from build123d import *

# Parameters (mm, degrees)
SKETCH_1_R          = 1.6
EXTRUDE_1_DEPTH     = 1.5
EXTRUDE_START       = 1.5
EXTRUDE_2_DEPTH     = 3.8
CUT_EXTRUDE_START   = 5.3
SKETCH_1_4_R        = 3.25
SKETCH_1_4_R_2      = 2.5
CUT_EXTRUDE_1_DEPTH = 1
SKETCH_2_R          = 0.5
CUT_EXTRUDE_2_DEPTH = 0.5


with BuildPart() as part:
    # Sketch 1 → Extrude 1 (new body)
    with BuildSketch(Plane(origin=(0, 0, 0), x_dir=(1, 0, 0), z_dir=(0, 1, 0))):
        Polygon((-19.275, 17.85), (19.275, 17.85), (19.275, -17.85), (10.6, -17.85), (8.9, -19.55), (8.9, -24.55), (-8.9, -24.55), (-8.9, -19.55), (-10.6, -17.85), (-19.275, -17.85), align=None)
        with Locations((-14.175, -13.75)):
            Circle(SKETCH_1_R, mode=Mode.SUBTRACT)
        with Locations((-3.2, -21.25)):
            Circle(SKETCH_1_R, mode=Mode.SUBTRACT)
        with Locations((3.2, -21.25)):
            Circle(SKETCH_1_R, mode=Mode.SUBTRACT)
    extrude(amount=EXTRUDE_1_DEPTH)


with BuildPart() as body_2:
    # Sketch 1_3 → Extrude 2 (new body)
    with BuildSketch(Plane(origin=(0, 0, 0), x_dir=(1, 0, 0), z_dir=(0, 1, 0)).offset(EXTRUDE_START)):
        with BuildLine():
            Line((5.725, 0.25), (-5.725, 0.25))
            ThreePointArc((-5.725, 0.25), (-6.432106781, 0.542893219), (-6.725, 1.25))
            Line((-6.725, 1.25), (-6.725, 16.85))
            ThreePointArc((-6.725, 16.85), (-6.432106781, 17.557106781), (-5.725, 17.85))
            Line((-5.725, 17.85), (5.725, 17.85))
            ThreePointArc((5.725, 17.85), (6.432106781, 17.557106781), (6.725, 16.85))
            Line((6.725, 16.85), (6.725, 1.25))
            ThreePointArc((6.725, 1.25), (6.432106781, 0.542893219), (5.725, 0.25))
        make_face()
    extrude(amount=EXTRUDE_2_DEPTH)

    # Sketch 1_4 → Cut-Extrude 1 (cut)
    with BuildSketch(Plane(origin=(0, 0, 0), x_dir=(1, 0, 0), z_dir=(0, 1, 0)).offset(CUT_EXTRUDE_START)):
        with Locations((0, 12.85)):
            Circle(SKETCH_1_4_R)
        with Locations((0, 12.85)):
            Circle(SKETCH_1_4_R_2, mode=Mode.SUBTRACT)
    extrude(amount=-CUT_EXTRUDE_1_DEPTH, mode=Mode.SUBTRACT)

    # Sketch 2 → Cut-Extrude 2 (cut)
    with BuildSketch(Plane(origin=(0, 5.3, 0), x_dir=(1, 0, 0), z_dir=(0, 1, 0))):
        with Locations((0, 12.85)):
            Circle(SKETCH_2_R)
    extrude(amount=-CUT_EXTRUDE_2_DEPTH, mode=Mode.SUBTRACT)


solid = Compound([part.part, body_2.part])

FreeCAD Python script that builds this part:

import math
import FreeCAD as App
import Part
import Sketcher
from FreeCAD import Vector

doc = App.newDocument("Part")
body = doc.addObject("PartDesign::Body", "Body")

# Sketch on XZ plane
sketch1 = body.newObject("Sketcher::SketchObject", "Sketch")
sketch1.AttachmentSupport = (doc.getObject("XZ_Plane"), [""])
sketch1.MapMode = "FlatFace"
sketch1.addGeometry([
    Part.LineSegment(Vector(19.275, -17.85, 0), Vector(-19.275, -17.85, 0)),  # 0
    Part.LineSegment(Vector(-19.275, -17.85, 0), Vector(-19.275, 17.85, 0)),  # 1
    Part.LineSegment(Vector(-19.275, 17.85, 0), Vector(-10.6, 17.85, 0)),  # 2
    Part.LineSegment(Vector(-10.6, 17.85, 0), Vector(-8.9, 19.55, 0)),  # 3
    Part.LineSegment(Vector(-8.9, 19.55, 0), Vector(-8.9, 24.55, 0)),  # 4
    Part.LineSegment(Vector(-8.9, 24.55, 0), Vector(8.9, 24.55, 0)),  # 5
    Part.LineSegment(Vector(8.9, 24.55, 0), Vector(8.9, 19.55, 0)),  # 6
    Part.LineSegment(Vector(8.9, 19.55, 0), Vector(10.6, 17.85, 0)),  # 7
    Part.LineSegment(Vector(10.6, 17.85, 0), Vector(19.275, 17.85, 0)),  # 8
    Part.LineSegment(Vector(19.275, 17.85, 0), Vector(19.275, -17.85, 0)),  # 9
    Part.Circle(Vector(3.2, 21.25, 0), Vector(0, 0, 1), 1.6),  # 10
    Part.Circle(Vector(-3.2, 21.25, 0), Vector(0, 0, 1), 1.6),  # 11
    Part.Circle(Vector(-14.175, 13.75, 0), Vector(0, 0, 1), 1.6),  # 12
], False)
sketch1.addConstraint([
    Sketcher.Constraint("Coincident", 0, 2, 1, 1),
    Sketcher.Constraint("Coincident", 1, 2, 2, 1),
    Sketcher.Constraint("Coincident", 2, 2, 3, 1),
    Sketcher.Constraint("Coincident", 3, 2, 4, 1),
    Sketcher.Constraint("Coincident", 4, 2, 5, 1),
    Sketcher.Constraint("Coincident", 5, 2, 6, 1),
    Sketcher.Constraint("Coincident", 6, 2, 7, 1),
    Sketcher.Constraint("Coincident", 7, 2, 8, 1),
    Sketcher.Constraint("Coincident", 8, 2, 9, 1),
    Sketcher.Constraint("Coincident", 9, 2, 0, 1),
    Sketcher.Constraint("Horizontal", 0),
    Sketcher.Constraint("Vertical", 1),
    Sketcher.Constraint("Horizontal", 2),
    Sketcher.Constraint("Vertical", 4),
    Sketcher.Constraint("Horizontal", 5),
    Sketcher.Constraint("Vertical", 6),
    Sketcher.Constraint("Horizontal", 8),
    Sketcher.Constraint("Vertical", 9),
    Sketcher.Constraint("Equal", 10, 11),
    Sketcher.Constraint("Equal", 11, 12),
    Sketcher.Constraint("Symmetric", 0, 2, 8, 2, -1, 1),
    Sketcher.Constraint("Symmetric", 10, 3, 11, 3, -2),
    Sketcher.Constraint("Symmetric", 3, 2, 6, 2, -2),
    Sketcher.Constraint("Symmetric", 2, 2, 7, 2, -2),
    Sketcher.Constraint("Perpendicular", 3, 7),
    Sketcher.Constraint("Diameter", 10, 3.2),
    Sketcher.Constraint("DistanceY", 4, 1, 4, 2, 5.0),
    Sketcher.Constraint("DistanceX", 5, 1, 5, 2, 17.8),
    Sketcher.Constraint("DistanceY", 1, 1, 1, 2, 35.7),
    Sketcher.Constraint("DistanceX", 0, 2, 0, 1, 38.55),
    Sketcher.Constraint("DistanceX", -1, 1, 10, 3, 3.2),
    Sketcher.Constraint("DistanceX", 2, 2, -1, 1, 10.6),
    Sketcher.Constraint("DistanceY", 12, 3, 11, 3, 7.5),
    Sketcher.Constraint("DistanceX", 0, 2, 12, 3, 5.1),
    Sketcher.Constraint("DistanceY", 0, 2, 12, 3, 31.6),
])
pad1 = body.newObject("PartDesign::Pad", "Pad")
pad1.Profile = sketch1
pad1.Length = 1.5
pad1.Reversed = True
body2 = doc.addObject("PartDesign::Body", "Body001")

# Sketch on XZ plane
sketch2 = body2.newObject("Sketcher::SketchObject", "Sketch001")
sketch2.AttachmentSupport = (doc.getObject("XZ_Plane001"), [""])
sketch2.MapMode = "FlatFace"
sketch2.AttachmentOffset = App.Placement(Vector(0, 0, -1.5), App.Rotation())
sketch2.addGeometry([
    Part.LineSegment(Vector(-5.725, -0.25, 0), Vector(5.725, -0.25, 0)),  # 0
    Part.ArcOfCircle(Part.Circle(Vector(5.725, -1.25, 0), Vector(0, 0, 1), 1), math.radians(0), math.radians(90)),  # 1
    Part.LineSegment(Vector(6.725, -1.25, 0), Vector(6.725, -16.85, 0)),  # 2
    Part.ArcOfCircle(Part.Circle(Vector(5.725, -16.85, 0), Vector(0, 0, 1), 1), math.radians(-90), math.radians(0)),  # 3
    Part.LineSegment(Vector(5.725, -17.85, 0), Vector(-5.725, -17.85, 0)),  # 4
    Part.ArcOfCircle(Part.Circle(Vector(-5.725, -16.85, 0), Vector(0, 0, 1), 1), math.radians(-180), math.radians(-90)),  # 5
    Part.LineSegment(Vector(-6.725, -16.85, 0), Vector(-6.725, -1.25, 0)),  # 6
    Part.ArcOfCircle(Part.Circle(Vector(-5.725, -1.25, 0), Vector(0, 0, 1), 1), math.radians(90), math.radians(180)),  # 7
], False)
sketch2.addConstraint([
    Sketcher.Constraint("Tangent", 0, 2, 1, 2),
    Sketcher.Constraint("Tangent", 1, 1, 2, 1),
    Sketcher.Constraint("Tangent", 2, 2, 3, 2),
    Sketcher.Constraint("Tangent", 3, 1, 4, 1),
    Sketcher.Constraint("Tangent", 4, 2, 5, 2),
    Sketcher.Constraint("Tangent", 5, 1, 6, 1),
    Sketcher.Constraint("Tangent", 6, 2, 7, 2),
    Sketcher.Constraint("Tangent", 7, 1, 0, 1),
    Sketcher.Constraint("Horizontal", 0),
    Sketcher.Constraint("Vertical", 2),
    Sketcher.Constraint("Horizontal", 4),
    Sketcher.Constraint("Vertical", 6),
    Sketcher.Constraint("Equal", 1, 3),
    Sketcher.Constraint("Equal", 3, 5),
    Sketcher.Constraint("Equal", 5, 7),
    Sketcher.Constraint("Radius", 1, 1.0),
    Sketcher.Constraint("DistanceY", 2, 2, 2, 1, 15.6),
    Sketcher.Constraint("DistanceX", 0, 1, 0, 2, 11.45),
    Sketcher.Constraint("DistanceY", 1, 3, -1, 1, 1.25),
    Sketcher.Constraint("DistanceX", -1, 1, 1, 3, 5.725),
])
pad2 = body2.newObject("PartDesign::Pad", "Pad001")
pad2.Profile = sketch2
pad2.Length = 3.8
pad2.Reversed = True

# Sketch on XZ plane
sketch3 = body2.newObject("Sketcher::SketchObject", "Sketch002")
sketch3.AttachmentSupport = (doc.getObject("XZ_Plane001"), [""])
sketch3.MapMode = "FlatFace"
sketch3.AttachmentOffset = App.Placement(Vector(0, 0, -5.3), App.Rotation())
sketch3.addGeometry([
    Part.Circle(Vector(0, -12.85, 0), Vector(0, 0, 1), 3.25),
    Part.Circle(Vector(0, -12.85, 0), Vector(0, 0, 1), 2.5),
], False)
sketch3.addConstraint([
    Sketcher.Constraint("Coincident", 1, 3, 0, 3),
    Sketcher.Constraint("PointOnObject", 0, 3, -2),
    Sketcher.Constraint("Diameter", 1, 5.0),
    Sketcher.Constraint("Diameter", 0, 6.5),
    Sketcher.Constraint("DistanceY", 0, 3, -1, 1, 12.85),
])
pocket1 = body2.newObject("PartDesign::Pocket", "Pocket")
pocket1.Profile = sketch3
pocket1.Length = 1
pocket1.Reversed = True

# Sketch on XZ plane
sketch4 = body2.newObject("Sketcher::SketchObject", "Sketch003")
sketch4.AttachmentSupport = (doc.getObject("XZ_Plane001"), [""])
sketch4.MapMode = "FlatFace"
sketch4.AttachmentOffset = App.Placement(Vector(0, 0, -5.3), App.Rotation())
sketch4.addGeometry(Part.Circle(Vector(0, -12.85, 0), Vector(0, 0, 1), 0.5), False)
sketch4.addConstraint([
    Sketcher.Constraint("PointOnObject", 0, 3, -2),
    Sketcher.Constraint("Diameter", 0, 1.0),
    Sketcher.Constraint("DistanceY", 0, 3, -1, 1, 12.85),
])
pocket2 = body2.newObject("PartDesign::Pocket", "Pocket001")
pocket2.Profile = sketch4
pocket2.Length = 0.5
pocket2.Reversed = True

doc.recompute()
